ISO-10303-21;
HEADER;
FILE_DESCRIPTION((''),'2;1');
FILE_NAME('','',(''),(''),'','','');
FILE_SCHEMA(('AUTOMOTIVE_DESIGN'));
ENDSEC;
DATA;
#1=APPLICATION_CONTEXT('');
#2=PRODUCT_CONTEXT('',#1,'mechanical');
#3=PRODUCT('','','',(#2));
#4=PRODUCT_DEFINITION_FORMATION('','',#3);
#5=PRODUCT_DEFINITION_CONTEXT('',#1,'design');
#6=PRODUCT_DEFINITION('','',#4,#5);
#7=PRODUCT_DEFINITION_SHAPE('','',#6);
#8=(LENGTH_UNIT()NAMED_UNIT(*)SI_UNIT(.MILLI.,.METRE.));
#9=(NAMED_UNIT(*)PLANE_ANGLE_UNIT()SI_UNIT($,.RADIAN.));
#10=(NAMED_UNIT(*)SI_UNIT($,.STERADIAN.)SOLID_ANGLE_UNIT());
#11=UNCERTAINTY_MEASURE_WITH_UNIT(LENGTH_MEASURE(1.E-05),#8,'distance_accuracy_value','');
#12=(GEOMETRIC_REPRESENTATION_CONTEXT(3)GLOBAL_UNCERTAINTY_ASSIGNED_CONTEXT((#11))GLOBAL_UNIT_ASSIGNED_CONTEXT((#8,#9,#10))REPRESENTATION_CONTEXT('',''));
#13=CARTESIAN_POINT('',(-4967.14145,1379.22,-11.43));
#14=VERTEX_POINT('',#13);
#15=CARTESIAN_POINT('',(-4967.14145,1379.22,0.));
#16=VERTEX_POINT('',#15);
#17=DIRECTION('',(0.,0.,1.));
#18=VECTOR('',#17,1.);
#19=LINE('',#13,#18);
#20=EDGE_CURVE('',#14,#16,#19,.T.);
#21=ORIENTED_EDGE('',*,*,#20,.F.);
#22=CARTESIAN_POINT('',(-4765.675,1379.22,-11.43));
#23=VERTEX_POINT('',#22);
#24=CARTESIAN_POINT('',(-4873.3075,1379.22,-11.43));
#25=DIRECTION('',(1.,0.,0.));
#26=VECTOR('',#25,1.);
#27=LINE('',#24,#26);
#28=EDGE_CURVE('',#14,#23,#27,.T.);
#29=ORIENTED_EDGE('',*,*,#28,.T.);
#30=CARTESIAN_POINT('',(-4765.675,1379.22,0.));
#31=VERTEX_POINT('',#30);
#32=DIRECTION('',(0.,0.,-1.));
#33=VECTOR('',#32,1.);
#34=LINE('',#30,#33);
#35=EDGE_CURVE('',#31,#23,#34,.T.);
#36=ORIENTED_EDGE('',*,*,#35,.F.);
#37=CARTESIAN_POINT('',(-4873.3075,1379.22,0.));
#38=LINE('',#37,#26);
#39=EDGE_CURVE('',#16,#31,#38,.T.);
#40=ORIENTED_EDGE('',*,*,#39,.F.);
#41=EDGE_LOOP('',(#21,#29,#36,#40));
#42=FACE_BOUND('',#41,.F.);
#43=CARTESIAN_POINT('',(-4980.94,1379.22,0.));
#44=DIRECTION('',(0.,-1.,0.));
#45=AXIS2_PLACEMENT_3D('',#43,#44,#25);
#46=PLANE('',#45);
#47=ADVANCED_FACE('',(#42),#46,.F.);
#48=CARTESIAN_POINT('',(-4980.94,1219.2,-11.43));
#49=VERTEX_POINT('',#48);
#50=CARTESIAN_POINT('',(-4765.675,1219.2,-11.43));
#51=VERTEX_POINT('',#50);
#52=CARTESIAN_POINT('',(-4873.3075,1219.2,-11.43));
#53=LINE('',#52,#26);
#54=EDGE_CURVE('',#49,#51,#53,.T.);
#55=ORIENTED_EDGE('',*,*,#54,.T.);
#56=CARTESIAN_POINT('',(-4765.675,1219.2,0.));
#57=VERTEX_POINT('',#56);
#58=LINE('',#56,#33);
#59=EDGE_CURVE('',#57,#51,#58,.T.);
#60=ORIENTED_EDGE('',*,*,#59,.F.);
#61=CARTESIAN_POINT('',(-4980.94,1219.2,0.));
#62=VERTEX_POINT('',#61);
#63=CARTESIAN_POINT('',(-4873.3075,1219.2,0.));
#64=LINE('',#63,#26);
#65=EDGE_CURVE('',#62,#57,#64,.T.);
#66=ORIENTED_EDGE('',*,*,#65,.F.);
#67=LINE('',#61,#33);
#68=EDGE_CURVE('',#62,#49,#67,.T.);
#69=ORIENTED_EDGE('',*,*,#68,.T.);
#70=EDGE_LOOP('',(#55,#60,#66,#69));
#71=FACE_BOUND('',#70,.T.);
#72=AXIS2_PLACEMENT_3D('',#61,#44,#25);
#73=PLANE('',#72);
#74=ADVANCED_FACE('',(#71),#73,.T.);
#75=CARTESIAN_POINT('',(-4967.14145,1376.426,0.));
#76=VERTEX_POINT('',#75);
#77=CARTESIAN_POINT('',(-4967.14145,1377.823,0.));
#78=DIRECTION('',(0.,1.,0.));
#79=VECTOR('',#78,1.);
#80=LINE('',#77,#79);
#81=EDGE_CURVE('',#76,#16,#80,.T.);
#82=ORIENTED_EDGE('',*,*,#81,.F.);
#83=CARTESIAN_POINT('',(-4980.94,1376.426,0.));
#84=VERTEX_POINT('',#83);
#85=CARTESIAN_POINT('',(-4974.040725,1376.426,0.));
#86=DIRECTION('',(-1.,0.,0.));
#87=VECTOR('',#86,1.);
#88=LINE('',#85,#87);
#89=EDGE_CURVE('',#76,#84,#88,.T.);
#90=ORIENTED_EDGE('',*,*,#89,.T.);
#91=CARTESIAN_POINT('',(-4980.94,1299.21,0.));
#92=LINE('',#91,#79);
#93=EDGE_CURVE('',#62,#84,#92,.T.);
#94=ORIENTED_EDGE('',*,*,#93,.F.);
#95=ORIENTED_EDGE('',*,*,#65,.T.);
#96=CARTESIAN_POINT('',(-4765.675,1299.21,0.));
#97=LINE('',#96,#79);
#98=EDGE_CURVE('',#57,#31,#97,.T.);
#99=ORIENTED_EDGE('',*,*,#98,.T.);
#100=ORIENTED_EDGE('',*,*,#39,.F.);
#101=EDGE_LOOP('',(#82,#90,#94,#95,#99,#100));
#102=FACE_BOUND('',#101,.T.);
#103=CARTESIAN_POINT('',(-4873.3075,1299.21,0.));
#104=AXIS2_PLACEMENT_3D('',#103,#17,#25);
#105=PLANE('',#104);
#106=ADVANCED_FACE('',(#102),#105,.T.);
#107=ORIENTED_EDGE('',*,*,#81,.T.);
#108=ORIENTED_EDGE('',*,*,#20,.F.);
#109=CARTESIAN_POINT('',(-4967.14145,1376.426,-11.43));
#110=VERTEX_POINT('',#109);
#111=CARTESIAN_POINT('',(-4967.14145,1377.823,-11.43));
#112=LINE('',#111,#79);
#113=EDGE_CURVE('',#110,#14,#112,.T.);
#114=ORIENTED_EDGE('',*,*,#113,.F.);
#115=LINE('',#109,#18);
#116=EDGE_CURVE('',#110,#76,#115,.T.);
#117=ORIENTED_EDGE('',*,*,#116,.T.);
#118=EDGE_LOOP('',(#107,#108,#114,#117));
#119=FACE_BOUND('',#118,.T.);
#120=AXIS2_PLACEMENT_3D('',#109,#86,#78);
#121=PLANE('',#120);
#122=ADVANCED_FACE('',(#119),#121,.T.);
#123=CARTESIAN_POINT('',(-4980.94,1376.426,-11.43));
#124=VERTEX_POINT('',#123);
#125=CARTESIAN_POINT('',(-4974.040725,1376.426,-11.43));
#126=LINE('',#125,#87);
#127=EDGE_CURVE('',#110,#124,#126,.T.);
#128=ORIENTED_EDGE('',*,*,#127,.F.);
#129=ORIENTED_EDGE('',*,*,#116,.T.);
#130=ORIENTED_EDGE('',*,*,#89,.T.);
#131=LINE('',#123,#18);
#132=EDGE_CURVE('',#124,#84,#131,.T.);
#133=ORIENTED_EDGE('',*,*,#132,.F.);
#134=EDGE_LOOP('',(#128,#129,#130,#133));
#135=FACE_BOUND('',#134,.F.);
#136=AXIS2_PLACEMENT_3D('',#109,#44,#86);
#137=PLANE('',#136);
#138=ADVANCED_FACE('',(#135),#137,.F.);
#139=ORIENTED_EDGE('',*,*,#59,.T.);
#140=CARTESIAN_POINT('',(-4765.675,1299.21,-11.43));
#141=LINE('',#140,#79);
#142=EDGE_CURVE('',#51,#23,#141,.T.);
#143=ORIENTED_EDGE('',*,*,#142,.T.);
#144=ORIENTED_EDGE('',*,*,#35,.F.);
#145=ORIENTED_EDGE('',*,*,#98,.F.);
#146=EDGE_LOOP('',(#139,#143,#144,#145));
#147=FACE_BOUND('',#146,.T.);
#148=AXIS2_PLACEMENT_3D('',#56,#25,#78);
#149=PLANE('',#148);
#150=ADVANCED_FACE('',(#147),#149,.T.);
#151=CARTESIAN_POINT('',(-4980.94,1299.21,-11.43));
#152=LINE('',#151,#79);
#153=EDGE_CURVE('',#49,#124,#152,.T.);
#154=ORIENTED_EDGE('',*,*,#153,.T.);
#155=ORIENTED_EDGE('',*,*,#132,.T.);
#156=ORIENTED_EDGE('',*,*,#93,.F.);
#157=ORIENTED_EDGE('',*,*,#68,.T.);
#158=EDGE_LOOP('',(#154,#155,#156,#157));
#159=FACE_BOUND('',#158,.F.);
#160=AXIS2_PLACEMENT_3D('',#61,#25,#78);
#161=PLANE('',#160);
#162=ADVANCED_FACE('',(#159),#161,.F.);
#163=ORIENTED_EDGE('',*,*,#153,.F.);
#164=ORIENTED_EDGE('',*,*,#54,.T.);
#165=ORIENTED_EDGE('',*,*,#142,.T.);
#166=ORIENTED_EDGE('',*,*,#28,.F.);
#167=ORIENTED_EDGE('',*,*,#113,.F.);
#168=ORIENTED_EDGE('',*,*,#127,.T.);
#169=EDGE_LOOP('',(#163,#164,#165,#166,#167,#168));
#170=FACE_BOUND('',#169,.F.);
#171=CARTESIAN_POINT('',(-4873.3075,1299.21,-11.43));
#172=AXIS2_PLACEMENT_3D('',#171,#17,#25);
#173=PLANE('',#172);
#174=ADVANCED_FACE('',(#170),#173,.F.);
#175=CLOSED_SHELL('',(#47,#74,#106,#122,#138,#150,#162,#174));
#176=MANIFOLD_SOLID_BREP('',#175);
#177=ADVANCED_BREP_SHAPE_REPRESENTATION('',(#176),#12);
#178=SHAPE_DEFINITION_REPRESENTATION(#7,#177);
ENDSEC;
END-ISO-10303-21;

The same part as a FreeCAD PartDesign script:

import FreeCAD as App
import Part
import Sketcher
Q = App.Units.Quantity


def add_polygon(sketch, points):
    """Adds a closed chain of lines whose ends are joined by coincident constraints."""
    first, n = sketch.GeometryCount, len(points)
    for a, b in zip(points, points[1:] + points[:1]):
        sketch.addGeometry(Part.LineSegment(App.Vector(*a, 0), App.Vector(*b, 0)), False)
    for i in range(n):
        sketch.addConstraint(Sketcher.Constraint("Coincident", first + i, 2, first + (i + 1) % n, 1))

doc = App.newDocument("Part")
body = doc.addObject("PartDesign::Body", "Body")

# Sketch on XY plane
sketch1 = body.newObject("Sketcher::SketchObject", "Sketch")
sketch1.AttachmentSupport = (doc.getObject("XY_Plane"), [""])
sketch1.MapMode = "FlatFace"
add_polygon(sketch1, [(-4981, 1379), (-4981, 1219), (-4766, 1219), (-4766, 1379)])  # lines 0-3
sketch1.addConstraint([
    Sketcher.Constraint("Vertical", 0),
    Sketcher.Constraint("Horizontal", 1),
    Sketcher.Constraint("Vertical", 2),
    Sketcher.Constraint("Horizontal", 3),
    Sketcher.Constraint("DistanceY", 0, 2, 0, 1, Q("6.3 in")),
    Sketcher.Constraint("DistanceY", -1, 1, 0, 2, Q("48 in")),
    Sketcher.Constraint("DistanceX", 0, 2, -1, 1, Q("196.1 in")),
    Sketcher.Constraint("DistanceX", 1, 1, 1, 2, Q("8.475 in")),
])
pad1 = body.newObject("PartDesign::Pad", "Pad")
pad1.Profile = sketch1
pad1.Length = Q("0.45 in")
pad1.Reversed = True

# Sketch on XY plane
sketch2 = body.newObject("Sketcher::SketchObject", "Sketch001")
sketch2.AttachmentSupport = (doc.getObject("XY_Plane"), [""])
sketch2.MapMode = "FlatFace"
sketch2.AttachmentOffset = App.Placement(App.Vector(0, 0, -0.45 * 25.4), App.Rotation())
add_polygon(sketch2, [(-4967.1, 1379.2), (-4967.1, 1376.4), (-4980.9, 1376.4), (-4980.9, 1379.2)])  # lines 0-3
sketch2.addConstraint([
    Sketcher.Constraint("Vertical", 0),
    Sketcher.Constraint("Horizontal", 1),
    Sketcher.Constraint("Vertical", 2),
    Sketcher.Constraint("Horizontal", 3),
    Sketcher.Constraint("DistanceY", 0, 2, 0, 1, Q("0.11 in")),
    Sketcher.Constraint("DistanceX", 1, 2, -1, 1, Q("196.1 in")),
    Sketcher.Constraint("DistanceY", -1, 1, 2, 2, Q("54.3 in")),
    Sketcher.Constraint("DistanceX", 1, 2, 1, 1, Q("13.79855 mm")),
])
pocket1 = body.newObject("PartDesign::Pocket", "Pocket")
pocket1.Profile = sketch2
pocket1.Length = Q("0.45 in")
pocket1.Reversed = True

doc.recompute()
